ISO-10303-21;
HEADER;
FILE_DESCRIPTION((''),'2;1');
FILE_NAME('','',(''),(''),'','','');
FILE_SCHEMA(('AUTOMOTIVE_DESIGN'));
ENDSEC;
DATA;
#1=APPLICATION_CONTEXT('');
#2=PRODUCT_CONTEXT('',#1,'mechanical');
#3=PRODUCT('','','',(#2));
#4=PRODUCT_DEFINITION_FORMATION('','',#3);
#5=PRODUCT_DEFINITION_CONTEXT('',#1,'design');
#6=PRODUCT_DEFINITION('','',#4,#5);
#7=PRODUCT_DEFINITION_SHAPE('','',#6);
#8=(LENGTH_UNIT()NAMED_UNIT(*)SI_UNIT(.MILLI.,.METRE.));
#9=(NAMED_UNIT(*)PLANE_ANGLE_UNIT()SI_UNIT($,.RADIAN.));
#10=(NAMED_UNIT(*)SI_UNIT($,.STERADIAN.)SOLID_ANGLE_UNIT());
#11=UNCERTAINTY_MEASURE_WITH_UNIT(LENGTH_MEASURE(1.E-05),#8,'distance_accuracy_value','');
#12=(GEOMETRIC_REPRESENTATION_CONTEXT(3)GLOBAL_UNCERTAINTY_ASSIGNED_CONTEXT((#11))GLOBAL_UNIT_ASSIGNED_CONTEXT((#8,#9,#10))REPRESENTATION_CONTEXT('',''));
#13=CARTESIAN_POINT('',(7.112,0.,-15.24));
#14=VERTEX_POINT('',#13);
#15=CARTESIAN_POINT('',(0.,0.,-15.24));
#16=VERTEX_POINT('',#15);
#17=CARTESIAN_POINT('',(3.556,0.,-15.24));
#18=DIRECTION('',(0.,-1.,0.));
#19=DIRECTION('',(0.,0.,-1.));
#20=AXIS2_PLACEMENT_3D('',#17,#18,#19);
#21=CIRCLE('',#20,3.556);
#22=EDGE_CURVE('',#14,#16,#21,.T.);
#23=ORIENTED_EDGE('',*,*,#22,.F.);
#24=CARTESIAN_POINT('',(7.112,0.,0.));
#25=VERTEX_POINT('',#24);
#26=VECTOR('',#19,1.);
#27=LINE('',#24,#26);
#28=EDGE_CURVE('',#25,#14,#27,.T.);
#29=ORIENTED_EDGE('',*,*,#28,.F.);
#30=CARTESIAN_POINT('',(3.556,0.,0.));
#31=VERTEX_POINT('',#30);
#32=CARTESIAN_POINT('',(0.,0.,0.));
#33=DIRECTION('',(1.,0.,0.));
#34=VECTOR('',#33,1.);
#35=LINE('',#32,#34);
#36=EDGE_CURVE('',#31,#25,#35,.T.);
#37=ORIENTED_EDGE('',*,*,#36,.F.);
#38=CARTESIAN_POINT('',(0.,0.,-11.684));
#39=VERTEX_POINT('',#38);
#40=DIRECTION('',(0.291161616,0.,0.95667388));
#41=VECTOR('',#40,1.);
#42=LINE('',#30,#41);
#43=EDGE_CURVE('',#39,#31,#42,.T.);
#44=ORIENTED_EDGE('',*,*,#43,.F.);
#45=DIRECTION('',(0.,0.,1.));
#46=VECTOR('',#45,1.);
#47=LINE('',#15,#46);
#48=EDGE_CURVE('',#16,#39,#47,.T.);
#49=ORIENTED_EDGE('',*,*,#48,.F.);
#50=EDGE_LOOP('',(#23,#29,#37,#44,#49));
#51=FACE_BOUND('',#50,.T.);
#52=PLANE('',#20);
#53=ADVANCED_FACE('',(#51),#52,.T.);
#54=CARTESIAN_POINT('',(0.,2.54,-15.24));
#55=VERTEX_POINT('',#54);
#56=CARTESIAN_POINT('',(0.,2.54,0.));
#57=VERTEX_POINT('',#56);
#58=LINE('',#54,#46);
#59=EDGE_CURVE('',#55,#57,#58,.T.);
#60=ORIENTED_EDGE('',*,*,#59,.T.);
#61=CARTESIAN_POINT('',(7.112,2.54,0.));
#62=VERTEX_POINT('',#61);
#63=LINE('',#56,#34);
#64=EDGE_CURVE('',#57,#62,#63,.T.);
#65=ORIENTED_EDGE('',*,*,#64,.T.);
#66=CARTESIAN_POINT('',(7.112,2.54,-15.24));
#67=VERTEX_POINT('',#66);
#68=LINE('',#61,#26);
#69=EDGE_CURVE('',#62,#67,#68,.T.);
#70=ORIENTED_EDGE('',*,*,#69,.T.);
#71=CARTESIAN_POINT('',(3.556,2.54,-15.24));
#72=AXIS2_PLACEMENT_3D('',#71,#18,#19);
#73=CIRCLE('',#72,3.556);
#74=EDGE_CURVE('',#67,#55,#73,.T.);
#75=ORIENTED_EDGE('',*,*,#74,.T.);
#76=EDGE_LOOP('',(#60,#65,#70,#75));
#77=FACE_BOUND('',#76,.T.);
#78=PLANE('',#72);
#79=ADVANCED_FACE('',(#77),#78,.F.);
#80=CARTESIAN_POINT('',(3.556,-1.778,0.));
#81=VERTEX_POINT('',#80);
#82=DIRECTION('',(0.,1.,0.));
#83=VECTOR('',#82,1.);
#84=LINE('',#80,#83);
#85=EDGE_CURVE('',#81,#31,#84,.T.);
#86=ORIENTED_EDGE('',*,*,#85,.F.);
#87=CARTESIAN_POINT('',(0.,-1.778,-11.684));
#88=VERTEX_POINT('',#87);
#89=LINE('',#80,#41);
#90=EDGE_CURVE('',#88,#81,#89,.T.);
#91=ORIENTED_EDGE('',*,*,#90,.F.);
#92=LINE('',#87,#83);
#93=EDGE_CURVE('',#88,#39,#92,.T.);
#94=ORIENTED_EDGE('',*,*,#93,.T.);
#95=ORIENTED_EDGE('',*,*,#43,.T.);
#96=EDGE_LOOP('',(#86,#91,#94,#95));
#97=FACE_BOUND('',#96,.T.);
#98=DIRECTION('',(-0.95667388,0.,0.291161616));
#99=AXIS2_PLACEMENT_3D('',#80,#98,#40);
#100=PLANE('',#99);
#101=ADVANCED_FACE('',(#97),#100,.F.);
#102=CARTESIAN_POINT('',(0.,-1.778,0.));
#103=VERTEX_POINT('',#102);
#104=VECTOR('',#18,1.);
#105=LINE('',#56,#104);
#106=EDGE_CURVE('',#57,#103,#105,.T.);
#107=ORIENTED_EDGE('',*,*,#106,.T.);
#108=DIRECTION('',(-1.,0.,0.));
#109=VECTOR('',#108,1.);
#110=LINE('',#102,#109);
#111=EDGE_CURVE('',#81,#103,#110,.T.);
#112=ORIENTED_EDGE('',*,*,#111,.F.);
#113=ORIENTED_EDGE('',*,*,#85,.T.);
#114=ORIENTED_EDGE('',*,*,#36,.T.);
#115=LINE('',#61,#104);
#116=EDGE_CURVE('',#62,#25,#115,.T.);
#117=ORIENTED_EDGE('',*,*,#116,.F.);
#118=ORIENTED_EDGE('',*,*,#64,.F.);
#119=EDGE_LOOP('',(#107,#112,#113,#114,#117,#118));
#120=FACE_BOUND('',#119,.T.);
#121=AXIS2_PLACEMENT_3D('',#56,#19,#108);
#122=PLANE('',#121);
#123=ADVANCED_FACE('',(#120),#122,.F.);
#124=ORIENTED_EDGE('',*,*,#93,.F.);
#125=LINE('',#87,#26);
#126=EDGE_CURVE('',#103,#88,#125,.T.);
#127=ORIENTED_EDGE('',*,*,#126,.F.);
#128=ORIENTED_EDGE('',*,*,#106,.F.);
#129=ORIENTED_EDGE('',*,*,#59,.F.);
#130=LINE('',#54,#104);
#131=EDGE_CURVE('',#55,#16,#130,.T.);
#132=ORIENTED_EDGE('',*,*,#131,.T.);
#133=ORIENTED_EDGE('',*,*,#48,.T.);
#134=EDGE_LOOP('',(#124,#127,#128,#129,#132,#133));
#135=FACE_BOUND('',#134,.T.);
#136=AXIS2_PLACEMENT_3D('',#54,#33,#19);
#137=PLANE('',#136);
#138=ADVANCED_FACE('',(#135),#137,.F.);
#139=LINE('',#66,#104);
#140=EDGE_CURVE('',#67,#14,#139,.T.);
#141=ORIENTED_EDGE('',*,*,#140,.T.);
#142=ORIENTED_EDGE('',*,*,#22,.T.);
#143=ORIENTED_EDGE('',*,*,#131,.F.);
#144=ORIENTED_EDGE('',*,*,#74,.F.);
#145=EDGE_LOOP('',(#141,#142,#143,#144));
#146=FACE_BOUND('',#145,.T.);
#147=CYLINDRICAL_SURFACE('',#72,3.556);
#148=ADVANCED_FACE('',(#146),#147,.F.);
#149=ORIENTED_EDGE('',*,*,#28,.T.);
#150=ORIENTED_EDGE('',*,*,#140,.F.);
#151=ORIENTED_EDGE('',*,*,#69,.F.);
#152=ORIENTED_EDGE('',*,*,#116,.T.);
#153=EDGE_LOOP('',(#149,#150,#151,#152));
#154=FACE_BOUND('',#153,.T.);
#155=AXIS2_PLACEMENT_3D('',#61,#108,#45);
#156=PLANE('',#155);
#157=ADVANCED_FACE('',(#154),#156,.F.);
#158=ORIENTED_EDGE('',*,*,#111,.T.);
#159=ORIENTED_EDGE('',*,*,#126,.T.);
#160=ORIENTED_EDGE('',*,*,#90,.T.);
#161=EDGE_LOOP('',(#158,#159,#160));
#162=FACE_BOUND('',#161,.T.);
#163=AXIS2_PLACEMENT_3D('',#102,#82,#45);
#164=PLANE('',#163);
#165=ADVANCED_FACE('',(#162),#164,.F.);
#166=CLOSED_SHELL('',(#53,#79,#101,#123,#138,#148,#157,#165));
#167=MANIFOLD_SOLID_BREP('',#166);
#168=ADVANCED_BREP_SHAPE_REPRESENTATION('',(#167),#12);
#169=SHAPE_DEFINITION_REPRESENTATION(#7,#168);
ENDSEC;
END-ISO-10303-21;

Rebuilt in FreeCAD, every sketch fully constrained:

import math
import FreeCAD as App
import Part
import Sketcher
Q = App.Units.Quantity

doc = App.newDocument("Part")
body = doc.addObject("PartDesign::Body", "Body")

sketch1 = body.newObject("Sketcher::SketchObject", "Sketch")
sketch1.AttachmentSupport = (doc.getObject("XZ_Plane"), [""])
sketch1.MapMode = "FlatFace"
sketch1.addGeometry([
    Part.LineSegment(App.Vector(0, -15.2, 0), App.Vector(0, 0, 0)),
    Part.LineSegment(App.Vector(0, 0, 0), App.Vector(7.1, 0, 0)),
    Part.LineSegment(App.Vector(7.1, 0, 0), App.Vector(7.1, -15.2, 0)),
    Part.ArcOfCircle(Part.Circle(App.Vector(3.6, -15.2, 0), App.Vector(0, 0, 1), 3.6), math.radians(0), math.radians(180)),
], False)
sketch1.addConstraint([
    Sketcher.Constraint("Coincident", 0, 2, 1, 1),
    Sketcher.Constraint("Coincident", 1, 2, 2, 1),
    Sketcher.Constraint("Tangent", 2, 2, 3, 1),
    Sketcher.Constraint("Tangent", 3, 2, 0, 1),
    Sketcher.Constraint("Vertical", 0),
    Sketcher.Constraint("Horizontal", 1),
    Sketcher.Constraint("Vertical", 2),
    Sketcher.Constraint("Coincident", 0, 2, -1, 1),
    Sketcher.Constraint("Radius", 3, Q("0.14 in")),
    Sketcher.Constraint("DistanceY", 0, 1, 0, 2, Q("0.6 in")),
])
pad1 = body.newObject("PartDesign::Pad", "Pad")
pad1.Profile = sketch1
pad1.Length = Q("0.1 in")
pad1.Reversed = True

sketch2 = body.newObject("Sketcher::SketchObject", "Sketch001")
sketch2.AttachmentSupport = (doc.getObject("XZ_Plane"), [""])
sketch2.MapMode = "FlatFace"
sketch2.addGeometry([
    Part.LineSegment(App.Vector(3.6, 0, 0), App.Vector(0, 0, 0)),
    Part.LineSegment(App.Vector(0, 0, 0), App.Vector(0, -11.7, 0)),
    Part.LineSegment(App.Vector(0, -11.7, 0), App.Vector(3.6, 0, 0)),
], False)
sketch2.addConstraint([
    Sketcher.Constraint("Coincident", 0, 2, 1, 1),
    Sketcher.Constraint("Coincident", 1, 2, 2, 1),
    Sketcher.Constraint("Coincident", 2, 2, 0, 1),
    Sketcher.Constraint("Horizontal", 0),
    Sketcher.Constraint("Vertical", 1),
    Sketcher.Constraint("Coincident", 0, 2, -1, 1),
    Sketcher.Constraint("DistanceX", 0, 2, 0, 1, Q("0.14 in")),
    Sketcher.Constraint("DistanceY", 1, 2, 1, 1, Q("0.46 in")),
])
pad2 = body.newObject("PartDesign::Pad", "Pad001")
pad2.Profile = sketch2
pad2.Length = Q("0.07 in")

doc.recompute()
